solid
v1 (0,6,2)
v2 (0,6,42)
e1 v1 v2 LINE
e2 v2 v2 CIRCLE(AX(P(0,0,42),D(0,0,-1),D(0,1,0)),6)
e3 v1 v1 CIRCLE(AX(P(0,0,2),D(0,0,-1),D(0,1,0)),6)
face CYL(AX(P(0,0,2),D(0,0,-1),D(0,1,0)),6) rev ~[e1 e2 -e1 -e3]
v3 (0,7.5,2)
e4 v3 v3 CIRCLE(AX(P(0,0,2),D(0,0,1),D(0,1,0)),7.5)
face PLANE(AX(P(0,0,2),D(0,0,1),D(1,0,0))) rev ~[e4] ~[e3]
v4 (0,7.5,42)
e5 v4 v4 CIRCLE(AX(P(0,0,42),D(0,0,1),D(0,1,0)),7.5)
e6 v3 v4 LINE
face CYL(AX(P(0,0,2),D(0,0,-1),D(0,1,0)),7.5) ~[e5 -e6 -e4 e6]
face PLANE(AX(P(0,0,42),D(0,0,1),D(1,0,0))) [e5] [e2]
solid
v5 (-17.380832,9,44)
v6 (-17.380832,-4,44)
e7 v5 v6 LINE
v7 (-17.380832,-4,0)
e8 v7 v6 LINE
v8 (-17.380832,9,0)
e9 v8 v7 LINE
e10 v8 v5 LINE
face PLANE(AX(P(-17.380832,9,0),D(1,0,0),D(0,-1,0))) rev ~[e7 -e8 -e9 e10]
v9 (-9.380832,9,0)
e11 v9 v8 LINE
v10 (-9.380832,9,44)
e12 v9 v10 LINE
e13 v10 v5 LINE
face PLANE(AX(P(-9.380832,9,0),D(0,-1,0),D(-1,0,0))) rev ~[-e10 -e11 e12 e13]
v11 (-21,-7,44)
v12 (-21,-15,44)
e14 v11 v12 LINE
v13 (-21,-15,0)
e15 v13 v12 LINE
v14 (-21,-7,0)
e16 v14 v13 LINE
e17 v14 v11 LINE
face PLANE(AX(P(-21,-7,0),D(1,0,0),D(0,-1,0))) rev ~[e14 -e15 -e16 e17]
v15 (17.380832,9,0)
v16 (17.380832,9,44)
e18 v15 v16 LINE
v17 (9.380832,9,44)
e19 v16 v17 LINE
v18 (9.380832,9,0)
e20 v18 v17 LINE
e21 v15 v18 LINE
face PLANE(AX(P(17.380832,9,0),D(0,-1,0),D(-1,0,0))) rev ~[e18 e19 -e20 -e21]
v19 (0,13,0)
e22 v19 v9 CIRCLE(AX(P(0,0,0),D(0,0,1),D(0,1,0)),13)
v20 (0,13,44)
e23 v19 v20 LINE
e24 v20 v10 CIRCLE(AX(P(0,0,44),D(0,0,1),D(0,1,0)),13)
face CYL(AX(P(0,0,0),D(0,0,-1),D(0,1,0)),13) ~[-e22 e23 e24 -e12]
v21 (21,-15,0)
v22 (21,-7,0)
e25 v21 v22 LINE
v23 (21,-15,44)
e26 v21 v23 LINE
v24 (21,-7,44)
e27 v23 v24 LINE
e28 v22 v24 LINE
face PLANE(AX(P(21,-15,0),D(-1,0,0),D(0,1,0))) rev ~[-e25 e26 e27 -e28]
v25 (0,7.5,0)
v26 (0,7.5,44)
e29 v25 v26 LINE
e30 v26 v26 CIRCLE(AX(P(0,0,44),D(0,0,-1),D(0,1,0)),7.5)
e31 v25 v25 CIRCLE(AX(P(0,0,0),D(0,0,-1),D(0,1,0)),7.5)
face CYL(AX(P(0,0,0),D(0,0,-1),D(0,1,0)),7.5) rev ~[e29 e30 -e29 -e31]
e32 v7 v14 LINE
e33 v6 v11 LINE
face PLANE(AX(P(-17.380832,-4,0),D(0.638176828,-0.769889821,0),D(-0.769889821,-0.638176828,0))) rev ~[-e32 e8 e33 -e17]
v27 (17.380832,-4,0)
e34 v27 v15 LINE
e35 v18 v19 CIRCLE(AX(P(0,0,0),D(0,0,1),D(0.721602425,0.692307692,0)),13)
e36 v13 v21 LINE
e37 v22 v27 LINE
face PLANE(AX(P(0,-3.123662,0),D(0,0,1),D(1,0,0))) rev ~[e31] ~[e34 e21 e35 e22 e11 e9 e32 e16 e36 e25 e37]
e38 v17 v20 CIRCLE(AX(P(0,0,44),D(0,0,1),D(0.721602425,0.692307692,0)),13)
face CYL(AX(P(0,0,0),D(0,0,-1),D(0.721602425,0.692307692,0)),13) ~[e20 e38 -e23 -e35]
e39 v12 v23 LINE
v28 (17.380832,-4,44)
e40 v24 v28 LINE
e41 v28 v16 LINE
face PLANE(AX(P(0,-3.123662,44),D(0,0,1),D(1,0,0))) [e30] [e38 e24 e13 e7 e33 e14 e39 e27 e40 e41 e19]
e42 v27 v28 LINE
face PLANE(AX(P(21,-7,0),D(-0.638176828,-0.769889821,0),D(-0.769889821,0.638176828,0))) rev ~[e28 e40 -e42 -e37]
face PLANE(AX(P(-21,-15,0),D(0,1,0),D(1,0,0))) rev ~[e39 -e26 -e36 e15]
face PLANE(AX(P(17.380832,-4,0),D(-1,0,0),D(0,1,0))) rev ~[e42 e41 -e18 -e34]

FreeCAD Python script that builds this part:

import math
import FreeCAD as App
import Part
import Sketcher
from FreeCAD import Vector

doc = App.newDocument("Part")
body = doc.addObject("PartDesign::Body", "Body")

sketch1 = body.newObject("Sketcher::SketchObject", "Sketch")
sketch1.AttachmentSupport = (doc.getObject("XY_Plane"), [""])
sketch1.MapMode = "FlatFace"
sketch1.addGeometry([
    Part.LineSegment(Vector(-21, -15, 0), Vector(21, -15, 0)),
    Part.LineSegment(Vector(21, -15, 0), Vector(21, -7, 0)),
    Part.LineSegment(Vector(21, -7, 0), Vector(17.4, -4, 0)),
    Part.LineSegment(Vector(17.4, -4, 0), Vector(17.4, 9, 0)),
    Part.LineSegment(Vector(17.4, 9, 0), Vector(9.4, 9, 0)),
    Part.ArcOfCircle(Part.Circle(Vector(0, 0, 0), Vector(0, 0, 1), 13), math.radians(44), math.radians(90)),
    Part.ArcOfCircle(Part.Circle(Vector(0, 0, 0), Vector(0, 0, 1), 13), math.radians(90), math.radians(136)),
    Part.LineSegment(Vector(-9.4, 9, 0), Vector(-17.4, 9, 0)),
    Part.LineSegment(Vector(-17.4, 9, 0), Vector(-17.4, -4, 0)),
    Part.LineSegment(Vector(-17.4, -4, 0), Vector(-21, -7, 0)),
    Part.LineSegment(Vector(-21, -7, 0), Vector(-21, -15, 0)),
    Part.Circle(Vector(0, 0, 0), Vector(0, 0, 1), 7.5),
], False)
sketch1.addConstraint([
    Sketcher.Constraint("Coincident", 0, 2, 1, 1),
    Sketcher.Constraint("Coincident", 1, 2, 2, 1),
    Sketcher.Constraint("Coincident", 2, 2, 3, 1),
    Sketcher.Constraint("Coincident", 3, 2, 4, 1),
    Sketcher.Constraint("Coincident", 4, 2, 5, 1),
    Sketcher.Constraint("Tangent", 5, 2, 6, 1),
    Sketcher.Constraint("Coincident", 6, 2, 7, 1),
    Sketcher.Constraint("Coincident", 7, 2, 8, 1),
    Sketcher.Constraint("Coincident", 8, 2, 9, 1),
    Sketcher.Constraint("Coincident", 9, 2, 10, 1),
    Sketcher.Constraint("Coincident", 10, 2, 0, 1),
    Sketcher.Constraint("Horizontal", 0),
    Sketcher.Constraint("Vertical", 1),
    Sketcher.Constraint("Vertical", 3),
    Sketcher.Constraint("Horizontal", 4),
    Sketcher.Constraint("Horizontal", 7),
    Sketcher.Constraint("Vertical", 8),
    Sketcher.Constraint("Vertical", 10),
    Sketcher.Constraint("Coincident", 5, 3, -1, 1),
    Sketcher.Constraint("Coincident", 11, 3, -1, 1),
    Sketcher.Constraint("Equal", 5, 6),
    Sketcher.Constraint("Symmetric", 3, 2, 7, 2, -2),
    Sketcher.Constraint("Symmetric", 1, 2, 9, 2, -2),
    Sketcher.Constraint("PointOnObject", 5, 2, -2),
    Sketcher.Constraint("Horizontal", 2, 2, 8, 2),
    Sketcher.Constraint("Equal", 7, 1),
    Sketcher.Constraint("Diameter", 11, 15.0),
    Sketcher.Constraint("Radius", 5, 13.0),
    Sketcher.Constraint("DistanceX", 0, 1, 0, 2, 42.0),
    Sketcher.Constraint("DistanceX", 4, 2, 4, 1, 8.0),
    Sketcher.Constraint("DistanceY", 3, 1, 3, 2, 13.0),
    Sketcher.Constraint("DistanceY", 0, 2, -1, 1, 15.0),
    Sketcher.Constraint("DistanceY", 2, 2, -1, 1, 4.0),
])
pad1 = body.newObject("PartDesign::Pad", "Pad")
pad1.Profile = sketch1
pad1.Length = 44
body2 = doc.addObject("PartDesign::Body", "Body001")

sketch2 = body2.newObject("Sketcher::SketchObject", "Sketch001")
sketch2.AttachmentSupport = (doc.getObject("XY_Plane001"), [""])
sketch2.MapMode = "FlatFace"
sketch2.AttachmentOffset = App.Placement(Vector(0, 0, 2), App.Rotation())
sketch2.addGeometry([
    Part.Circle(Vector(0, 0, 0), Vector(0, 0, 1), 8),
    Part.Circle(Vector(0, 0, 0), Vector(0, 0, 1), 6),
], False)
sketch2.addConstraint([
    Sketcher.Constraint("Coincident", 0, 3, -1, 1),
    Sketcher.Constraint("Coincident", 1, 3, -1, 1),
    Sketcher.Constraint("Diameter", 0, 15.0),
    Sketcher.Constraint("Diameter", 1, 12.0),
])
pad2 = body2.newObject("PartDesign::Pad", "Pad001")
pad2.Profile = sketch2
pad2.Length = 40

doc.recompute()
